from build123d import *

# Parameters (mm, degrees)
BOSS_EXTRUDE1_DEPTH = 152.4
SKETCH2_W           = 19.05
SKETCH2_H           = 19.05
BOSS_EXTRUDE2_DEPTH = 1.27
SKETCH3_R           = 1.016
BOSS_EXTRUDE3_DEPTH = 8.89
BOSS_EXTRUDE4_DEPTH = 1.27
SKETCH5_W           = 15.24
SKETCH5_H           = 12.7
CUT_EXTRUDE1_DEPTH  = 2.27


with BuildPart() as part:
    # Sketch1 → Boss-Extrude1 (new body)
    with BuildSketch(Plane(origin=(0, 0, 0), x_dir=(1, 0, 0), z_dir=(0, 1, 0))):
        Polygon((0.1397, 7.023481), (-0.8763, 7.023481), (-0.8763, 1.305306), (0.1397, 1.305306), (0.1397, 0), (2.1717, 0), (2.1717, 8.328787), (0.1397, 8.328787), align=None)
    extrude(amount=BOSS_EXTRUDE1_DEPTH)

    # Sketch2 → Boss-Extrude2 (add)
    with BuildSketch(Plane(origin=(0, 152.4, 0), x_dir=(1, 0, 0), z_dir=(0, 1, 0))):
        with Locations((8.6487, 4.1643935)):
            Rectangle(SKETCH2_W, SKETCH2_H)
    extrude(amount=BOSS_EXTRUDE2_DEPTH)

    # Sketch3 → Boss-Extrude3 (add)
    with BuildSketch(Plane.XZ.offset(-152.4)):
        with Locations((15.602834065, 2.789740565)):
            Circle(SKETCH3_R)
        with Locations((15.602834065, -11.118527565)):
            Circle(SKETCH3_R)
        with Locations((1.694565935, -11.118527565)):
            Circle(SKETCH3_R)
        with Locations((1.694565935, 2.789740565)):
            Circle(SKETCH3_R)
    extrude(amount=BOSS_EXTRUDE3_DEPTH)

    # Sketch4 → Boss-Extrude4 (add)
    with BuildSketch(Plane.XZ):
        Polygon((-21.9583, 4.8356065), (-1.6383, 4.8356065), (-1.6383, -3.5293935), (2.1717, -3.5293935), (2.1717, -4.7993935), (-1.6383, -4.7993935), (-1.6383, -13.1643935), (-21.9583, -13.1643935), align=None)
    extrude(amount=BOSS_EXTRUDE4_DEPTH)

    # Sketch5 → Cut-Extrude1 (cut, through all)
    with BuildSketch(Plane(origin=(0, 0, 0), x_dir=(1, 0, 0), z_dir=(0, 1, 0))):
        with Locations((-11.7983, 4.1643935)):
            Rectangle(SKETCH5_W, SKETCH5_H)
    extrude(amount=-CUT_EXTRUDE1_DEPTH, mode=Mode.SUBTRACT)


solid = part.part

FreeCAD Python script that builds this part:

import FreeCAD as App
import Part
import Sketcher

V = App.Vector
Q = App.Units.Quantity


def add_polygon(sketch, points):
    """Adds a closed chain of lines whose ends are joined by coincident constraints."""
    first, n = sketch.GeometryCount, len(points)
    for a, b in zip(points, points[1:] + points[:1]):
        sketch.addGeometry(Part.LineSegment(App.Vector(*a, 0), App.Vector(*b, 0)), False)
    for i in range(n):
        sketch.addConstraint(Sketcher.Constraint("Coincident", first + i, 2, first + (i + 1) % n, 1))

doc = App.newDocument("Part")
params = doc.addObject("Spreadsheet::Sheet", "Params")
for row, (alias, value) in enumerate([
    ("sketch1_width", "0.04 in"),
    ("sketch1_width2", "0.08 in"),
    ("pad1_length", "6 in"),
    ("sketch2_width", "0.75 in"),
    ("pad2_length", "0.05 in"),
    ("sketch3_diameter", "0.08 in"),
    ("pad3_length", "0.35 in"),
    ("sketch4_width", "0.8 in"),
    ("sketch4_width2", "0.15 in"),
    ("sketch4_height", "0.05 in"),
    ("pad4_length", "0.05 in"),
    ("sketch5_width", "0.6 in"),
    ("sketch5_height", "0.5 in"),
], start=1):
    params.set(f"A{row}", alias)
    params.set(f"B{row}", "=" + value)
    params.setAlias(f"B{row}", alias)

body = doc.addObject("PartDesign::Body", "Body")

# Sketch on XZ plane
sketch1 = body.newObject("Sketcher::SketchObject", "Sketch")
sketch1.AttachmentSupport = (doc.getObject("XZ_Plane"), [""])
sketch1.MapMode = "FlatFace"
add_polygon(sketch1, [(0.1397, -7.023481), (-0.8763, -7.023481), (-0.8763, -1.305306), (0.1397, -1.305306), (0.1397, 0), (2.1717, 0), (2.1717, -8.328787), (0.1397, -8.328787)])  # lines 0-7
sketch1.addConstraint([
    Sketcher.Constraint("Horizontal", 0),
    Sketcher.Constraint("Vertical", 1),
    Sketcher.Constraint("Horizontal", 2),
    Sketcher.Constraint("Vertical", 3),
    Sketcher.Constraint("Horizontal", 4),
    Sketcher.Constraint("Vertical", 5),
    Sketcher.Constraint("Horizontal", 6),
    Sketcher.Constraint("Vertical", 7),
    Sketcher.Constraint("PointOnObject", 3, 2, -1),
    Sketcher.Constraint("Vertical", 3, 2, 6, 2),
    Sketcher.Constraint("Equal", 3, 7),
    Sketcher.Constraint("DistanceX", 0, 2, 0, 1, Q("0.04 in")),
    Sketcher.Constraint("DistanceX", 4, 1, 4, 2, Q("0.08 in")),
    Sketcher.Constraint("DistanceX", 0, 2, -1, 1, Q("0.0345 in")),
    Sketcher.Constraint("DistanceY", 1, 1, 1, 2, 5.718175),
    Sketcher.Constraint("DistanceY", 3, 1, 3, 2, 1.305306),
])
sketch1.setExpression("Constraints[19]", "Params.sketch1_width")
sketch1.setExpression("Constraints[20]", "Params.sketch1_width2")
pad1 = body.newObject("PartDesign::Pad", "Pad")
pad1.Profile = sketch1
pad1.setExpression("Length", "Params.pad1_length")
pad1.Reversed = True

# Sketch on XZ plane
sketch2 = body.newObject("Sketcher::SketchObject", "Sketch001")
sketch2.AttachmentSupport = (doc.getObject("XZ_Plane"), [""])
sketch2.MapMode = "FlatFace"
sketch2.AttachmentOffset = App.Placement(V(0, 0, -6 * 25.4), App.Rotation())
add_polygon(sketch2, [(-0.8763, -13.689393), (-0.8763, 5.360607), (18.1737, 5.360607), (18.1737, -13.689393)])  # lines 0-3
sketch2.addConstraint([
    Sketcher.Constraint("Vertical", 0),
    Sketcher.Constraint("Horizontal", 1),
    Sketcher.Constraint("Vertical", 2),
    Sketcher.Constraint("Horizontal", 3),
    Sketcher.Constraint("Equal", 3, 0),
    Sketcher.Constraint("DistanceX", 1, 1, 1, 2, Q("0.75 in")),
    Sketcher.Constraint("DistanceX", 0, 2, -1, 1, Q("0.0345 in")),
    Sketcher.Constraint("DistanceY", -1, 1, 0, 2, 5.360607),
])
sketch2.setExpression("Constraints[9]", "Params.sketch2_width")
pad2 = body.newObject("PartDesign::Pad", "Pad001")
pad2.Profile = sketch2
pad2.setExpression("Length", "Params.pad2_length")
pad2.Reversed = True

# Sketch on XZ plane
sketch3 = body.newObject("Sketcher::SketchObject", "Sketch002")
sketch3.AttachmentSupport = (doc.getObject("XZ_Plane"), [""])
sketch3.MapMode = "FlatFace"
sketch3.AttachmentOffset = App.Placement(V(0, 0, -6 * 25.4), App.Rotation())
sketch3.addGeometry([
    Part.Circle(V(15.602834, 2.789741, 0), V(0, 0, 1), 1.016),
    Part.Circle(V(15.602834, -11.118528, 0), V(0, 0, 1), 1.016),
    Part.Circle(V(1.694566, -11.118528, 0), V(0, 0, 1), 1.016),
    Part.Circle(V(1.694566, 2.789741, 0), V(0, 0, 1), 1.016),
], False)
sketch3.addConstraint([
    Sketcher.Constraint("Equal", 0, 1),
    Sketcher.Constraint("Equal", 1, 2),
    Sketcher.Constraint("Equal", 2, 3),
    Sketcher.Constraint("Horizontal", 1, 3, 2, 3),
    Sketcher.Constraint("Horizontal", 0, 3, 3, 3),
    Sketcher.Constraint("Vertical", 0, 3, 1, 3),
    Sketcher.Constraint("Vertical", 2, 3, 3, 3),
    Sketcher.Constraint("Diameter", 0, Q("0.08 in")),
    Sketcher.Constraint("DistanceY", -1, 1, 0, 3, 2.789741),
    Sketcher.Constraint("DistanceY", 1, 3, 0, 3, 13.908268),
    Sketcher.Constraint("DistanceX", 2, 3, 1, 3, 13.908268),
    Sketcher.Constraint("DistanceX", -1, 1, 0, 3, 15.602834),
])
sketch3.setExpression("Constraints[7]", "Params.sketch3_diameter")
pad3 = body.newObject("PartDesign::Pad", "Pad002")
pad3.Profile = sketch3
pad3.setExpression("Length", "Params.pad3_length")

# Sketch on XZ plane
sketch4 = body.newObject("Sketcher::SketchObject", "Sketch003")
sketch4.AttachmentSupport = (doc.getObject("XZ_Plane"), [""])
sketch4.MapMode = "FlatFace"
add_polygon(sketch4, [(-1.6383, 4.835606), (-21.9583, 4.835606), (-21.9583, -13.164393), (-1.6383, -13.164393), (-1.6383, -4.799393), (2.1717, -4.799393), (2.1717, -3.529393), (-1.6383, -3.529393)])  # lines 0-7
sketch4.addConstraint([
    Sketcher.Constraint("Horizontal", 0),
    Sketcher.Constraint("Vertical", 1),
    Sketcher.Constraint("Horizontal", 2),
    Sketcher.Constraint("Vertical", 3),
    Sketcher.Constraint("Horizontal", 4),
    Sketcher.Constraint("Vertical", 5),
    Sketcher.Constraint("Horizontal", 6),
    Sketcher.Constraint("Vertical", 7),
    Sketcher.Constraint("Vertical", 3, 2, 6, 2),
    Sketcher.Constraint("Equal", 3, 7),
    Sketcher.Constraint("DistanceX", 0, 2, 0, 1, Q("0.8 in")),
    Sketcher.Constraint("DistanceX", 4, 1, 4, 2, Q("0.15 in")),
    Sketcher.Constraint("DistanceY", 5, 1, 5, 2, Q("0.05 in")),
    Sketcher.Constraint("DistanceY", 1, 2, 1, 1, 18.0),
    Sketcher.Constraint("DistanceX", 0, 2, -1, 1, Q("0.8645 in")),
    Sketcher.Constraint("DistanceY", -1, 1, 0, 2, 4.835606),
])
sketch4.setExpression("Constraints[18]", "Params.sketch4_width")
sketch4.setExpression("Constraints[19]", "Params.sketch4_width2")
sketch4.setExpression("Constraints[20]", "Params.sketch4_height")
pad4 = body.newObject("PartDesign::Pad", "Pad003")
pad4.Profile = sketch4
pad4.setExpression("Length", "Params.pad4_length")

# Sketch on XZ plane
sketch5 = body.newObject("Sketcher::SketchObject", "Sketch004")
sketch5.AttachmentSupport = (doc.getObject("XZ_Plane"), [""])
sketch5.MapMode = "FlatFace"
add_polygon(sketch5, [(-19.4183, -10.514394), (-19.4183, 2.185607), (-4.1783, 2.185607), (-4.1783, -10.514394)])  # lines 0-3
sketch5.addConstraint([
    Sketcher.Constraint("Vertical", 0),
    Sketcher.Constraint("Horizontal", 1),
    Sketcher.Constraint("Vertical", 2),
    Sketcher.Constraint("Horizontal", 3),
    Sketcher.Constraint("DistanceX", 1, 1, 1, 2, Q("0.6 in")),
    Sketcher.Constraint("DistanceY", 0, 1, 0, 2, Q("0.5 in")),
    Sketcher.Constraint("DistanceX", 0, 2, -1, 1, Q("0.7645 in")),
    Sketcher.Constraint("DistanceY", -1, 1, 0, 2, 2.185607),
])
sketch5.setExpression("Constraints[8]", "Params.sketch5_width")
sketch5.setExpression("Constraints[9]", "Params.sketch5_height")
pocket1 = body.newObject("PartDesign::Pocket", "Pocket")
pocket1.Profile = sketch5
pocket1.Type = "ThroughAll"
pocket1.Reversed = True

doc.recompute()
